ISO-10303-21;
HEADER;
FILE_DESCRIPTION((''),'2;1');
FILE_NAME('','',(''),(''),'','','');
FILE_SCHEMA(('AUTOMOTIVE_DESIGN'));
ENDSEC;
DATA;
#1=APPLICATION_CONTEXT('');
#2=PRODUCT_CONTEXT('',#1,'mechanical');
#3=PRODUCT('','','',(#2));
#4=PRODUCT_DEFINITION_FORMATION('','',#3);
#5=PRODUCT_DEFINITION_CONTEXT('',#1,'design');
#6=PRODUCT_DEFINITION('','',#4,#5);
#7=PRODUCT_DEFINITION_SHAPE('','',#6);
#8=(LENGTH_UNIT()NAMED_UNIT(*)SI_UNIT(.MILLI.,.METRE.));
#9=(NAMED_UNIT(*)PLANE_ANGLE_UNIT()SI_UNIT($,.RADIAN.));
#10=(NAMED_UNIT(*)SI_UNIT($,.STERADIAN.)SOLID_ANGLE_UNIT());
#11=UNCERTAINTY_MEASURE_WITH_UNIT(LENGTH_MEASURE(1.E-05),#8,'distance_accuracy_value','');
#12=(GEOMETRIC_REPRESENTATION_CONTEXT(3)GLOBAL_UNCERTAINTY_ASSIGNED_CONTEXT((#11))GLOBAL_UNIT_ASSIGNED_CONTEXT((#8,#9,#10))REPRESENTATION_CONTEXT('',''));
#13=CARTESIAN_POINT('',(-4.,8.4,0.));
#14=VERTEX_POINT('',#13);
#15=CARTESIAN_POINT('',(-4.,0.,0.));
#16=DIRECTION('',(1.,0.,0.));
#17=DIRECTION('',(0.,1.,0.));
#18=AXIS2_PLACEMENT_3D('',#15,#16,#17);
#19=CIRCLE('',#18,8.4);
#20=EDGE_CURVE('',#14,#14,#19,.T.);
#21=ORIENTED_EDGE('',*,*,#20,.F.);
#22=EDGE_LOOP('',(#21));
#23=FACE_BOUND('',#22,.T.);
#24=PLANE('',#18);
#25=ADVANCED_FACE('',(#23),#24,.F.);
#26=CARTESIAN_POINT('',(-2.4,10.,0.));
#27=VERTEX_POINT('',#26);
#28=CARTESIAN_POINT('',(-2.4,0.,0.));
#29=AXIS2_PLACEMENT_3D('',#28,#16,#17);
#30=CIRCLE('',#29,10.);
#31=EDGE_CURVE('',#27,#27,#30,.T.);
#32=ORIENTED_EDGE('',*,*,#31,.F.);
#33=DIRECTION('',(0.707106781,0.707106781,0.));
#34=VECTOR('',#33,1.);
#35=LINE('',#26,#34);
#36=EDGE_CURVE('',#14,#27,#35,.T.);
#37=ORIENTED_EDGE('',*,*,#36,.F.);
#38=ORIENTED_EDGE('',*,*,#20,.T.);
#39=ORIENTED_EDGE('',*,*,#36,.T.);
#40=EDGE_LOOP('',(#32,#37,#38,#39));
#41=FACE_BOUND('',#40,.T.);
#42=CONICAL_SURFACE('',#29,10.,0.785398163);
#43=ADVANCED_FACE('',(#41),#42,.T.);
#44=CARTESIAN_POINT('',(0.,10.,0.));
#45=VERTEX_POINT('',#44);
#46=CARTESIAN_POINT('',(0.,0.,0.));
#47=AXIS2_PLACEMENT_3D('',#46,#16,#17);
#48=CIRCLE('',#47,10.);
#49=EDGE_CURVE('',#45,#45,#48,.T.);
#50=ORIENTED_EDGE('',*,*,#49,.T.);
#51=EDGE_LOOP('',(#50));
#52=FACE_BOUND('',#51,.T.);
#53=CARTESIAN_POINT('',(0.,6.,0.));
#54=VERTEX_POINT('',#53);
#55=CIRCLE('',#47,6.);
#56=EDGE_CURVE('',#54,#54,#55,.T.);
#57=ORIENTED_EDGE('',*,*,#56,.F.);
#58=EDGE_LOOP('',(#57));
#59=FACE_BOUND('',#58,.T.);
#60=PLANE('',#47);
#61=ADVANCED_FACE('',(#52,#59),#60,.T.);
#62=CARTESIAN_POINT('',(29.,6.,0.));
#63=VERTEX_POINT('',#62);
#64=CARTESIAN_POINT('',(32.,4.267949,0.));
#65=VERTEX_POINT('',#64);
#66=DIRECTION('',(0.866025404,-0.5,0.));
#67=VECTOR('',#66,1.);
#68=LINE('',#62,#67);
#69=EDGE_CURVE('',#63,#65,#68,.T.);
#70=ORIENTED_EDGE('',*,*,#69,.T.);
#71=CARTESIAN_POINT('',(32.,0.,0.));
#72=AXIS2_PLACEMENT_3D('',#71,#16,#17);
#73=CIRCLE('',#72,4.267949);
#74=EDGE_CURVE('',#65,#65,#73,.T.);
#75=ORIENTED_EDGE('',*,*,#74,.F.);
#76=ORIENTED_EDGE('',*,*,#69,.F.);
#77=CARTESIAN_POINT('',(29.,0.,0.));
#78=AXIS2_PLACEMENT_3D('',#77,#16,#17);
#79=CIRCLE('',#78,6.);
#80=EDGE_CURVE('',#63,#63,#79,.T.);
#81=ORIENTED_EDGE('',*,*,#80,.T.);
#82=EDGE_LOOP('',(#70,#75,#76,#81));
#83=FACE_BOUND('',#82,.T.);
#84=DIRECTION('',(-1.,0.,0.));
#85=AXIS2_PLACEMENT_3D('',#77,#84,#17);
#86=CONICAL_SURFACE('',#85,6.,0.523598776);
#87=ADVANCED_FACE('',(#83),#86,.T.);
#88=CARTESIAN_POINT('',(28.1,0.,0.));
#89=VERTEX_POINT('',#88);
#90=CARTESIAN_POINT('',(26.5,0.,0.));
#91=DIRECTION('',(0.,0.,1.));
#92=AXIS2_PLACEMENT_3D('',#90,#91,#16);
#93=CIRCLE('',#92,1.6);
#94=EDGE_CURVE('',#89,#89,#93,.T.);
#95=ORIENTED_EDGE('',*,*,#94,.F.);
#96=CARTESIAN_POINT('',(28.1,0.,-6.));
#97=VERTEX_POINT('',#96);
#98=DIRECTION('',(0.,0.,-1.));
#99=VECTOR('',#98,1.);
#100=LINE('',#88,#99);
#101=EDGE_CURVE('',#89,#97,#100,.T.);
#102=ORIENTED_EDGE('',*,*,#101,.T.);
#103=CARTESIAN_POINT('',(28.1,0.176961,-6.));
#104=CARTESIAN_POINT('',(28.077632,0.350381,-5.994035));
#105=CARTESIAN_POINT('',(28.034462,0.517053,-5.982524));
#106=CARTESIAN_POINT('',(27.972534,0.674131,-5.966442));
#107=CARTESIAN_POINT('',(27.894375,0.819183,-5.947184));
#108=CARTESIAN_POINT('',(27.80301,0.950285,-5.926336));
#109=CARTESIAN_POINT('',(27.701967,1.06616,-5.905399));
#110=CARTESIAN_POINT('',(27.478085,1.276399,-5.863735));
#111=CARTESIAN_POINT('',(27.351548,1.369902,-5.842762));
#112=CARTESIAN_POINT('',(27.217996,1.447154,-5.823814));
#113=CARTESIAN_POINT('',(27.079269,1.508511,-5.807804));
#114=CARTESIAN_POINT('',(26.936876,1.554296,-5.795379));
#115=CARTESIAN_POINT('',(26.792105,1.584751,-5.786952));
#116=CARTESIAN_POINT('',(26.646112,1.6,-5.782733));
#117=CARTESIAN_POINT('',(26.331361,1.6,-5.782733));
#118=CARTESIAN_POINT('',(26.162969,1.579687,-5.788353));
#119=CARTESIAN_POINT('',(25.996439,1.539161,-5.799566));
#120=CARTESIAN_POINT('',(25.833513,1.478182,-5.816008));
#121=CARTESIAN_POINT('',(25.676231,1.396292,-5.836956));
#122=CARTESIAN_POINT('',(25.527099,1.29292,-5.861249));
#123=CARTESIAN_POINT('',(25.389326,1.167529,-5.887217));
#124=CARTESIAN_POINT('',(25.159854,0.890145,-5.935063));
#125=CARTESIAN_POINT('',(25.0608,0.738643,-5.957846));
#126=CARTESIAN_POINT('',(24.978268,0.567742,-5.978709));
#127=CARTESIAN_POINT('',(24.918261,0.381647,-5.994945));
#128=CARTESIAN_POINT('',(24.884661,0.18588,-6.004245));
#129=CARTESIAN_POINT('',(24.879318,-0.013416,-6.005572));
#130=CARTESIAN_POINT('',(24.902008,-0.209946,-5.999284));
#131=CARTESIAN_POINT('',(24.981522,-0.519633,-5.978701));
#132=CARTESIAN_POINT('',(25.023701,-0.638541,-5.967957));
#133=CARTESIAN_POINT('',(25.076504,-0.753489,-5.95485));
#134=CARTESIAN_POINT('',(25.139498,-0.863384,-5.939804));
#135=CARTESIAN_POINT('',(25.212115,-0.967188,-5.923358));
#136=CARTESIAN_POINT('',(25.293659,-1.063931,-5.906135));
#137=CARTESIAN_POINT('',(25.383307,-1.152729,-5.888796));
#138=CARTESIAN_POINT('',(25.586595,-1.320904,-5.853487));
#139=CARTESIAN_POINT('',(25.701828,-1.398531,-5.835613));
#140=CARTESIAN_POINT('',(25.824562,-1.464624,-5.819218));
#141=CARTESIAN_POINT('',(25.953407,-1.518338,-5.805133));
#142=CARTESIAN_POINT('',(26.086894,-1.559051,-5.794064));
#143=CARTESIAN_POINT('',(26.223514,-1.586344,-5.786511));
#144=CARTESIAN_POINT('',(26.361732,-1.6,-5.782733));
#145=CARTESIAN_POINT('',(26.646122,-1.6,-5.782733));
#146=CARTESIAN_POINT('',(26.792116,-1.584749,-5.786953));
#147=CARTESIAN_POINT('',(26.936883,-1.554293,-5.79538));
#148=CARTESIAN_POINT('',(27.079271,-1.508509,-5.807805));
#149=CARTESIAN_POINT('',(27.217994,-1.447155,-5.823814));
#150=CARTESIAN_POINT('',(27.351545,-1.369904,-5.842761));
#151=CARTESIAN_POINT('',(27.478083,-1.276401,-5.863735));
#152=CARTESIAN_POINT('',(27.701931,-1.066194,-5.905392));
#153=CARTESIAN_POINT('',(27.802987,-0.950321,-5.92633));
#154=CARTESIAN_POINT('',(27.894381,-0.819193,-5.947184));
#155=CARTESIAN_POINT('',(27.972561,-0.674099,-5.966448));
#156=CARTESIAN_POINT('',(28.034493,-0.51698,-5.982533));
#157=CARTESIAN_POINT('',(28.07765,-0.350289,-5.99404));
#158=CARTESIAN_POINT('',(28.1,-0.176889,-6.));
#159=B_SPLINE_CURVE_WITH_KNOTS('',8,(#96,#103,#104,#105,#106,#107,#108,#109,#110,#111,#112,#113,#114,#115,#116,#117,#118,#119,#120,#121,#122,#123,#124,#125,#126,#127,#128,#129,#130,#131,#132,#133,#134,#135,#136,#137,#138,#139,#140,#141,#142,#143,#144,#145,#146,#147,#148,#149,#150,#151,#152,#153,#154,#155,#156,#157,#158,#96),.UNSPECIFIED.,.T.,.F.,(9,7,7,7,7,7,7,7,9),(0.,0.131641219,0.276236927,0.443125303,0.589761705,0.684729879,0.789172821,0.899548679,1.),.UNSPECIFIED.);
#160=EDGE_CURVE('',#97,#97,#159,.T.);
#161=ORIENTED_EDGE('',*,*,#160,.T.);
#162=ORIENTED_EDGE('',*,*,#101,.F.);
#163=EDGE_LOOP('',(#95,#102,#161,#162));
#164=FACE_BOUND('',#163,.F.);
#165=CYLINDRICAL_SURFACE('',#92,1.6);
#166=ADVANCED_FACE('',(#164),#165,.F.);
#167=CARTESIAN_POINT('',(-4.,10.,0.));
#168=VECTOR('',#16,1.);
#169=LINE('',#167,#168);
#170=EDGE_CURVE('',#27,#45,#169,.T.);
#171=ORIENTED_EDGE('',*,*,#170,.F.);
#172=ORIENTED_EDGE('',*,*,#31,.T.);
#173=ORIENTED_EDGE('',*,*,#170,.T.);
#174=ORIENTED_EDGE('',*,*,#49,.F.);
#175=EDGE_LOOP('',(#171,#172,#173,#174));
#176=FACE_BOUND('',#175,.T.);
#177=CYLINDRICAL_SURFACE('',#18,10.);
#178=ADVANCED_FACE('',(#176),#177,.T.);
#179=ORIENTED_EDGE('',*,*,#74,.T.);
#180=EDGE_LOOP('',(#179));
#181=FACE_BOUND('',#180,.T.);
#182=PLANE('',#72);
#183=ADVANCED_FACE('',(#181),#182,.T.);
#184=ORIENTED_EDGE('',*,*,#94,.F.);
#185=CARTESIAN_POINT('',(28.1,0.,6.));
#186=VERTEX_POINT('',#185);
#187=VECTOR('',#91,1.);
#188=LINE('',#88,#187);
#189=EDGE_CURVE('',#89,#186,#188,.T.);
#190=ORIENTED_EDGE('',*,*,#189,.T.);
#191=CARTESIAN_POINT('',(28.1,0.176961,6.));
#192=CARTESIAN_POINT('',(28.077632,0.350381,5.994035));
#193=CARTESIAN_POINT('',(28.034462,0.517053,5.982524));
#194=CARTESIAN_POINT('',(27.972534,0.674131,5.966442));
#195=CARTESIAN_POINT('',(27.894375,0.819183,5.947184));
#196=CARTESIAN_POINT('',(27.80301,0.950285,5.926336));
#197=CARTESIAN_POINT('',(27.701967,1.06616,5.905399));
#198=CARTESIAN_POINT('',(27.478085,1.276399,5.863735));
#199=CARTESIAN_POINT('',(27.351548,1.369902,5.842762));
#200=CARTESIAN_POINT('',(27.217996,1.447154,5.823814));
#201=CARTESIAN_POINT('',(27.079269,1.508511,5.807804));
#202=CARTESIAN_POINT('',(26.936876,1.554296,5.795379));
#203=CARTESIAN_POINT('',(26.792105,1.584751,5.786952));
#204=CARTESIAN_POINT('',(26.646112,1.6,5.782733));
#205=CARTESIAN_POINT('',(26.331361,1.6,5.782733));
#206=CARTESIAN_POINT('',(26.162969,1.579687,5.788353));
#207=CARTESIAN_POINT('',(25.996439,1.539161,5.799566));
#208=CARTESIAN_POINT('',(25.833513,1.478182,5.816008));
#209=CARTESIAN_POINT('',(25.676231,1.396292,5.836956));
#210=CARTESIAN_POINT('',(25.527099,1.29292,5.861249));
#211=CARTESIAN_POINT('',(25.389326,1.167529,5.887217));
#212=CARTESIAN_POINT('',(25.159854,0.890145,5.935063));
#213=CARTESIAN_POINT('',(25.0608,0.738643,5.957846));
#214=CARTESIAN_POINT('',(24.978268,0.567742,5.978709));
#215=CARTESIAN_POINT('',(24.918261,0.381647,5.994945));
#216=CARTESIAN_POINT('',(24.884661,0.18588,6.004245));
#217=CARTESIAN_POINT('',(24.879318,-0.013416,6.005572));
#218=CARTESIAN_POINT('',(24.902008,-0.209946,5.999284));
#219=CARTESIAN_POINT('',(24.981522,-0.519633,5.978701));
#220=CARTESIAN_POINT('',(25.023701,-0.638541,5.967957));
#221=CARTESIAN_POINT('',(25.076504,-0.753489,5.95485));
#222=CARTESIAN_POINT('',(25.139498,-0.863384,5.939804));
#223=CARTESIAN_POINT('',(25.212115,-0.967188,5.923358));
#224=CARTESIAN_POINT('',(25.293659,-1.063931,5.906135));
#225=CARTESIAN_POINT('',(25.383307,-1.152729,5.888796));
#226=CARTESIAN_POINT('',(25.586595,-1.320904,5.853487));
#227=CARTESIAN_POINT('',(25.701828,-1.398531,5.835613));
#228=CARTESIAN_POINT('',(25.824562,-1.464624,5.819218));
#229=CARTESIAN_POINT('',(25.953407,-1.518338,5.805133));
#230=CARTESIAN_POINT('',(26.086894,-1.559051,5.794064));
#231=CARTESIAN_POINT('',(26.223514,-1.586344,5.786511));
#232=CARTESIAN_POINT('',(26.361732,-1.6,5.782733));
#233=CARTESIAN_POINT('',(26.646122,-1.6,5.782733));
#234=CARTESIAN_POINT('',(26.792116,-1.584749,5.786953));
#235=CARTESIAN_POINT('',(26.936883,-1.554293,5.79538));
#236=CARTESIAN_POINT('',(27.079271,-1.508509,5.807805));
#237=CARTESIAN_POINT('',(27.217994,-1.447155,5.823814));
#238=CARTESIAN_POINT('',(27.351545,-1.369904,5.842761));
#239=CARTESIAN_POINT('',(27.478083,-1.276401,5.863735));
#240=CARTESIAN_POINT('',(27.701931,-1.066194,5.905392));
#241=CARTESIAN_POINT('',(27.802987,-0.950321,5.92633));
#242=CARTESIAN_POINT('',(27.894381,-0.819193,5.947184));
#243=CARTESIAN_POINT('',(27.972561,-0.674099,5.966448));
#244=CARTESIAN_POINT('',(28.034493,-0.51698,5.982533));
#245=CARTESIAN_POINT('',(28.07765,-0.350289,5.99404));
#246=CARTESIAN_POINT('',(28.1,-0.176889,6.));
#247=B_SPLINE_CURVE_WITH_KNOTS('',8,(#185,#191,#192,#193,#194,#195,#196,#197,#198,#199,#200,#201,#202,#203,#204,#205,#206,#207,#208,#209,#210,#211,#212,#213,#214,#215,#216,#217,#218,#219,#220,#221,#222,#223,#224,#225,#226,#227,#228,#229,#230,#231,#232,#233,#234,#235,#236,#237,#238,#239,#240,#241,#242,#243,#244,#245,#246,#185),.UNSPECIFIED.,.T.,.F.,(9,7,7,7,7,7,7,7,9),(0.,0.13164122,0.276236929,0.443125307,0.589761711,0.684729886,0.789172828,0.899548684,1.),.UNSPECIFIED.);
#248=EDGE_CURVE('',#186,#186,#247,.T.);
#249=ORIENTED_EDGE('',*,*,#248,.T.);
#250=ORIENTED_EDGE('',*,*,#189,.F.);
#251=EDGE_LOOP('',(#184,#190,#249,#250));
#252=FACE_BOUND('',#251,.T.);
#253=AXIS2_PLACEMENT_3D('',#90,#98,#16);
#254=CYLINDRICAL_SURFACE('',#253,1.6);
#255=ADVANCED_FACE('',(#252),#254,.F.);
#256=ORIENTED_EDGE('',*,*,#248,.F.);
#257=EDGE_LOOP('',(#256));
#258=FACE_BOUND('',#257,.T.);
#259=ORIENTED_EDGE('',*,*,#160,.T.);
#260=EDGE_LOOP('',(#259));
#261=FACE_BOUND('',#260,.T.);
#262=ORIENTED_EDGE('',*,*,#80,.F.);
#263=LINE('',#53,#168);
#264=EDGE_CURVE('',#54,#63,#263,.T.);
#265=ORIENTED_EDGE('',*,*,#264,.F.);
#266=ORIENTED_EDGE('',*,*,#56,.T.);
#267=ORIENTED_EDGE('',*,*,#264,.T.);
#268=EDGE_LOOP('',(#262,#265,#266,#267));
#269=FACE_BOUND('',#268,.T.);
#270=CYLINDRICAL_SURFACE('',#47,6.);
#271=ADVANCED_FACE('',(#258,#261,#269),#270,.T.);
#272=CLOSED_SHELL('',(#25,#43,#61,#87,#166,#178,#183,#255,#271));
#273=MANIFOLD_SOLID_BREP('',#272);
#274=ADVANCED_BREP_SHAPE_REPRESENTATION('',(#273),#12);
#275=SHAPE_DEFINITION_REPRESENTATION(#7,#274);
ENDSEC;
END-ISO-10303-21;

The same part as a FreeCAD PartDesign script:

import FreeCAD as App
import Part
import Sketcher

V = App.Vector


def edges_at(feature, points):
    """Names of the edges that pass closest to the given points."""
    edges = feature.Shape.Edges
    near = lambda p: min(range(len(edges)), key=lambda i: edges[i].distToShape(Part.Vertex(*p))[0])
    return sorted({f"Edge{near(p) + 1}" for p in points})

doc = App.newDocument("Part")
body = doc.addObject("PartDesign::Body", "Body")

# Sketch on XY plane
sketch1 = body.newObject("Sketcher::SketchObject", "Sketch")
sketch1.AttachmentSupport = (doc.getObject("XY_Plane"), [""])
sketch1.MapMode = "FlatFace"
sketch1.addGeometry([
    Part.LineSegment(V(-4, 10, 0), V(-4, 0, 0)),  # 0
    Part.LineSegment(V(-4, 0, 0), V(32, 0, 0)),  # 1
    Part.LineSegment(V(32, 0, 0), V(32, 6, 0)),  # 2
    Part.LineSegment(V(32, 6, 0), V(0, 6, 0)),  # 3
    Part.LineSegment(V(0, 6, 0), V(0, 10, 0)),  # 4
    Part.LineSegment(V(0, 10, 0), V(-4, 10, 0)),  # 5
], False)
sketch1.addConstraint([
    Sketcher.Constraint("Coincident", 0, 2, 1, 1),
    Sketcher.Constraint("Coincident", 1, 2, 2, 1),
    Sketcher.Constraint("Coincident", 2, 2, 3, 1),
    Sketcher.Constraint("Coincident", 3, 2, 4, 1),
    Sketcher.Constraint("Coincident", 4, 2, 5, 1),
    Sketcher.Constraint("Coincident", 5, 2, 0, 1),
    Sketcher.Constraint("Vertical", 0),
    Sketcher.Constraint("Horizontal", 1),
    Sketcher.Constraint("Vertical", 2),
    Sketcher.Constraint("Horizontal", 3),
    Sketcher.Constraint("Vertical", 4),
    Sketcher.Constraint("Horizontal", 5),
    Sketcher.Constraint("PointOnObject", 0, 2, -1),
    Sketcher.Constraint("PointOnObject", 3, 2, -2),
    Sketcher.Constraint("Equal", 5, 4),
    Sketcher.Constraint("DistanceX", 3, 2, 3, 1, 32.0),
    Sketcher.Constraint("DistanceX", 5, 2, 5, 1, 4.0),
    Sketcher.Constraint("DistanceY", 0, 2, 0, 1, 10.0),
])
revolution = body.newObject("PartDesign::Revolution", "Revolution")
revolution.Profile = sketch1
revolution.ReferenceAxis = (sketch1, ["H_Axis"])
revolution.Angle = 360

# Sketch on XY plane
sketch2 = body.newObject("Sketcher::SketchObject", "Sketch001")
sketch2.AttachmentSupport = (doc.getObject("XY_Plane"), [""])
sketch2.MapMode = "FlatFace"
sketch2.addGeometry(Part.Circle(V(26.5, 0, 0), V(0, 0, 1), 1.6), False)
sketch2.addConstraint([
    Sketcher.Constraint("PointOnObject", 0, 3, -1),
    Sketcher.Constraint("Diameter", 0, 3.2),
    Sketcher.Constraint("DistanceX", -1, 1, 0, 3, 26.5),
])
pocket1 = body.newObject("PartDesign::Pocket", "Pocket")
pocket1.Profile = sketch2
pocket1.Type = "ThroughAll"
pocket1.Midplane = True
doc.recompute()

chamfer = body.newObject("PartDesign::Chamfer", "Chamfer")
chamfer.Base = (pocket1, edges_at(pocket1, [(-4, -10, 0)]))
chamfer.Size = 1.6
doc.recompute()

chamfer2 = body.newObject("PartDesign::Chamfer", "Chamfer001")
chamfer2.Base = (chamfer, edges_at(chamfer, [(32, -6, 0)]))
chamfer2.ChamferType = "Distance and Angle"
chamfer2.Size = 3
chamfer2.Angle = 30

doc.recompute()
